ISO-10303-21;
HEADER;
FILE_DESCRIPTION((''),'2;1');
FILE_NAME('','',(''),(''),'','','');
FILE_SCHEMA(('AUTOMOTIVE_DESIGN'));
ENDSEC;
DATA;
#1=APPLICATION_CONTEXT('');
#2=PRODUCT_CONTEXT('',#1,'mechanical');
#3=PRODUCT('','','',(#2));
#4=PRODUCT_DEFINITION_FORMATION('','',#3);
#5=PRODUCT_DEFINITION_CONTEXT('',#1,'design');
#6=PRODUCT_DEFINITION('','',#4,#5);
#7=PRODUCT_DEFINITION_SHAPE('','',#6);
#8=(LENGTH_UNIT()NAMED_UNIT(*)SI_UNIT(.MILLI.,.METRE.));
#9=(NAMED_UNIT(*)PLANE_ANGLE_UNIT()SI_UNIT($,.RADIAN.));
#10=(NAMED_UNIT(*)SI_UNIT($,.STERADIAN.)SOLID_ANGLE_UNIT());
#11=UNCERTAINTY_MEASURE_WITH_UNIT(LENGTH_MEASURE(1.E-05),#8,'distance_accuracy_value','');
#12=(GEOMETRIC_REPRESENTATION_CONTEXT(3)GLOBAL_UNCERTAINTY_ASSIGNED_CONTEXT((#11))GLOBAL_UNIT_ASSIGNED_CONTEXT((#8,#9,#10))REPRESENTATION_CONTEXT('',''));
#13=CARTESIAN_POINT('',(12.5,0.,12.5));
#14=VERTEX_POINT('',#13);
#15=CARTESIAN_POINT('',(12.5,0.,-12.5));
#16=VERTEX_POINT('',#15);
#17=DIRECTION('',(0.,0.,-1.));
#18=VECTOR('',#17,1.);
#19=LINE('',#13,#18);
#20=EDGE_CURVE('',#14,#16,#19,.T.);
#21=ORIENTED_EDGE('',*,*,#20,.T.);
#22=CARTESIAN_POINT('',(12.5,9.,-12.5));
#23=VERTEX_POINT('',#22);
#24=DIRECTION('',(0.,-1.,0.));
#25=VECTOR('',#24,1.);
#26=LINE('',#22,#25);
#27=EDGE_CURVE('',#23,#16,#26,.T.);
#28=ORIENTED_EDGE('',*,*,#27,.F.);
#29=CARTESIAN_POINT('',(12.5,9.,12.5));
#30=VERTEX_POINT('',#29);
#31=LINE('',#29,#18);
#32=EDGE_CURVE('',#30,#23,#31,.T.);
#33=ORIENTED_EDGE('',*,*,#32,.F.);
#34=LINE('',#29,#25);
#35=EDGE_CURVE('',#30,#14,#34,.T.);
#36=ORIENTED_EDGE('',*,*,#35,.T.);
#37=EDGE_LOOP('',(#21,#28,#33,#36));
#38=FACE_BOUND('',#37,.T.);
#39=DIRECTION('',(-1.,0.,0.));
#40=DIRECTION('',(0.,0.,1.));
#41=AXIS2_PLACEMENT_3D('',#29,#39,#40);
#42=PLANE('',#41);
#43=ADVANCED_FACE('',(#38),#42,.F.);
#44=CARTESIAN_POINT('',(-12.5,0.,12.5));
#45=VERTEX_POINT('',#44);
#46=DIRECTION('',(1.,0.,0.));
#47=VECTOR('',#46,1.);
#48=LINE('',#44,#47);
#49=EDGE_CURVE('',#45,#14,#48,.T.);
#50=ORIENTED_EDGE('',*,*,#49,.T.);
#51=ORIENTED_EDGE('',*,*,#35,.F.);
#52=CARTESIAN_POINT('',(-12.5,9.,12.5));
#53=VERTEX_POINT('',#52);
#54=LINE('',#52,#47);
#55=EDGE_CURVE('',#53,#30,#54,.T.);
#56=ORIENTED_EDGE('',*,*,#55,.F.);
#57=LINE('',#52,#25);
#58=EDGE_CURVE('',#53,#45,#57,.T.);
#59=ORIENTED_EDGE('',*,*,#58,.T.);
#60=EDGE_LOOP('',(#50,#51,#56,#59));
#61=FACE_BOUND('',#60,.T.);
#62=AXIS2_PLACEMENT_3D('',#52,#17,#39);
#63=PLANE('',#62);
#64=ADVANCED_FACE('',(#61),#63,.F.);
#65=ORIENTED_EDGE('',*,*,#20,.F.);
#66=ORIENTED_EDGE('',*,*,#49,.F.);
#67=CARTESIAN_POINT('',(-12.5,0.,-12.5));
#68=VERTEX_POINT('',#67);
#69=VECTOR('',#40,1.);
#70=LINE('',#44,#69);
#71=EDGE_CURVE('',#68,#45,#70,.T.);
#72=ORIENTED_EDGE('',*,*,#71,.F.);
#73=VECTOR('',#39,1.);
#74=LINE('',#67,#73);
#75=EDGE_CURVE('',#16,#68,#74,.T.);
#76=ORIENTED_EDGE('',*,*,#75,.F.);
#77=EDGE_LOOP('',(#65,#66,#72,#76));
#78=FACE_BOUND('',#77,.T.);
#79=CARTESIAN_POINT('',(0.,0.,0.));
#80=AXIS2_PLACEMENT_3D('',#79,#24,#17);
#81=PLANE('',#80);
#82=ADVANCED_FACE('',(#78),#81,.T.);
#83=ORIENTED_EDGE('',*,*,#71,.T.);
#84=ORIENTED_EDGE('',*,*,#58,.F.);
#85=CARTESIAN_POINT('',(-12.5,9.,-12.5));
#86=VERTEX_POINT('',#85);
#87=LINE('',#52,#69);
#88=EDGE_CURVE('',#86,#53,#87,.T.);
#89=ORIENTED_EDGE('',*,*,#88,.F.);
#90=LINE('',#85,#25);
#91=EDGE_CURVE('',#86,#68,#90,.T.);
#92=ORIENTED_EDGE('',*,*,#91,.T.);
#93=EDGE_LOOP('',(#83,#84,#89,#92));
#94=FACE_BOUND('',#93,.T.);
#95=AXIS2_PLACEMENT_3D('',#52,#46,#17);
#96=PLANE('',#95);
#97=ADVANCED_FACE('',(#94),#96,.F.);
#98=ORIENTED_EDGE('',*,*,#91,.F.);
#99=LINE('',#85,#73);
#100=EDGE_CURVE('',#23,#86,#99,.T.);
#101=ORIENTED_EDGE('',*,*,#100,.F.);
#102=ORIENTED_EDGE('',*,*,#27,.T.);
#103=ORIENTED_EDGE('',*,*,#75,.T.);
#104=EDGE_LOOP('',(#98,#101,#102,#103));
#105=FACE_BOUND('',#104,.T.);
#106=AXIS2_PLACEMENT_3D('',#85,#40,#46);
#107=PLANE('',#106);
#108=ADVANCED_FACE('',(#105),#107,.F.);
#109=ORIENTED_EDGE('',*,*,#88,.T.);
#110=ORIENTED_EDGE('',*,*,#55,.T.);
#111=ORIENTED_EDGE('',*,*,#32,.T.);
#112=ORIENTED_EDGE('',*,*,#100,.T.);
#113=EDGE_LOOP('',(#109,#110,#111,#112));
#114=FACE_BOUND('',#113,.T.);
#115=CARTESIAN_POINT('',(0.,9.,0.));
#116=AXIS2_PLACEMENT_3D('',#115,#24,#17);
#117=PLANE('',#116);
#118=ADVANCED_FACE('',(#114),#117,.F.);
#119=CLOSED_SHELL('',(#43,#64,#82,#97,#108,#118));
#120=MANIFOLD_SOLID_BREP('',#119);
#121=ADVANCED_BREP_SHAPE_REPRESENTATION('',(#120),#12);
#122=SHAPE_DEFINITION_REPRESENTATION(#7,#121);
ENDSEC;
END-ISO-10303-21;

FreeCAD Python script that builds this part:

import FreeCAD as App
import Part
import Sketcher

V = App.Vector
Q = App.Units.Quantity


def add_polygon(sketch, points):
    """Adds a closed chain of lines whose ends are joined by coincident constraints."""
    first, n = sketch.GeometryCount, len(points)
    for a, b in zip(points, points[1:] + points[:1]):
        sketch.addGeometry(Part.LineSegment(App.Vector(*a, 0), App.Vector(*b, 0)), False)
    for i in range(n):
        sketch.addConstraint(Sketcher.Constraint("Coincident", first + i, 2, first + (i + 1) % n, 1))

doc = App.newDocument("Part")
body = doc.addObject("PartDesign::Body", "Body")

# Sketch on XZ plane
sketch1 = body.newObject("Sketcher::SketchObject", "Sketch")
sketch1.AttachmentSupport = (doc.getObject("XZ_Plane"), [""])
sketch1.MapMode = "FlatFace"
add_polygon(sketch1, [(-12, -12), (-12, 12), (12, 12), (12, -12)])  # lines 0-3
sketch1.addConstraint(Sketcher.Constraint("Vertical", 0))
sketch1.addConstraint(Sketcher.Constraint("Horizontal", 1))
sketch1.addConstraint(Sketcher.Constraint("Vertical", 2))
sketch1.addConstraint(Sketcher.Constraint("Horizontal", 3))
sketch1.addConstraint(Sketcher.Constraint("Symmetric", 0, 2, 2, 2, -1, 1))
sketch1.addConstraint(Sketcher.Constraint("Equal", 3, 0))
sketch1.addConstraint(Sketcher.Constraint("DistanceX", 1, 1, 1, 2, Q("25 mm")))
pad1 = body.newObject("PartDesign::Pad", "Pad")
pad1.Profile = sketch1
pad1.Length = 9
pad1.Reversed = True

doc.recompute()
